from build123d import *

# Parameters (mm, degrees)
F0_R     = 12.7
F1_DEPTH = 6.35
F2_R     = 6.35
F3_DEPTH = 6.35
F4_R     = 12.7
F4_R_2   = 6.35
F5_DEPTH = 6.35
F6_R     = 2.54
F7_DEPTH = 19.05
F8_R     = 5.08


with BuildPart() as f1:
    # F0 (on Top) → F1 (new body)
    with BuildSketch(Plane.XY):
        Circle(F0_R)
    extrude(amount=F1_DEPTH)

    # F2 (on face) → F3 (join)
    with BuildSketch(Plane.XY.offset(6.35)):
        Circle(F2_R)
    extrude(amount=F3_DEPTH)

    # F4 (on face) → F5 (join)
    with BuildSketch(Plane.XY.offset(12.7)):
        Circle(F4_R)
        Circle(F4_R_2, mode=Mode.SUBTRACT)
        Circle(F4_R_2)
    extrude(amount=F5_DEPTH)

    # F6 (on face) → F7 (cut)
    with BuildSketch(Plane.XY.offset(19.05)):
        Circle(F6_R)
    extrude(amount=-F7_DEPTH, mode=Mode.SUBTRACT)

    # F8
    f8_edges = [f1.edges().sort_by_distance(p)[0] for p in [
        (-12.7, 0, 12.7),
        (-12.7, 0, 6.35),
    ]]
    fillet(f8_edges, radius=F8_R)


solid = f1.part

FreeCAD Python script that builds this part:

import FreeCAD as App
import Part
import Sketcher
from FreeCAD import Vector
Q = App.Units.Quantity


def edges_at(feature, points):
    """Names of the edges that pass closest to the given points."""
    edges = feature.Shape.Edges
    near = lambda p: min(range(len(edges)), key=lambda i: edges[i].distToShape(Part.Vertex(*p))[0])
    return sorted({f"Edge{near(p) + 1}" for p in points})

doc = App.newDocument("Part")
body = doc.addObject("PartDesign::Body", "Body")

# Sketch on XY plane
sketch1 = doc.addObject("Sketcher::SketchObject", "Sketch")
body.addObject(sketch1)
sketch1.AttachmentSupport = (doc.XY_Plane, [""])
sketch1.MapMode = "FlatFace"
sketch1.addGeometry(Part.Circle(Vector(0, 0, 0), Vector(0, 0, 1), 13), False)
sketch1.addConstraint(Sketcher.Constraint("Coincident", 0, 3, -1, 1))
sketch1.addConstraint(Sketcher.Constraint("Diameter", 0, Q("1 in")))
pad1 = doc.addObject("PartDesign::Pad", "Pad")
body.addObject(pad1)
pad1.Profile = sketch1
pad1.Length = Q("0.25 in")

# Sketch on XY plane
sketch2 = doc.addObject("Sketcher::SketchObject", "Sketch001")
body.addObject(sketch2)
sketch2.AttachmentSupport = (doc.XY_Plane, [""])
sketch2.MapMode = "FlatFace"
sketch2.AttachmentOffset = App.Placement(Vector(0, 0, 0.25 * 25.4), App.Rotation())
sketch2.addGeometry(Part.Circle(Vector(0, 0, 0), Vector(0, 0, 1), 6), False)
sketch2.addConstraint(Sketcher.Constraint("Coincident", 0, 3, -1, 1))
sketch2.addConstraint(Sketcher.Constraint("Diameter", 0, Q("0.5 in")))
pad2 = doc.addObject("PartDesign::Pad", "Pad001")
body.addObject(pad2)
pad2.Profile = sketch2
pad2.Length = Q("0.25 in")

# Sketch on XY plane
sketch3 = doc.addObject("Sketcher::SketchObject", "Sketch002")
body.addObject(sketch3)
sketch3.AttachmentSupport = (doc.XY_Plane, [""])
sketch3.MapMode = "FlatFace"
sketch3.AttachmentOffset = App.Placement(Vector(0, 0, 0.5 * 25.4), App.Rotation())
sketch3.addGeometry(Part.Circle(Vector(0, 0, 0), Vector(0, 0, 1), 13), False)
sketch3.addConstraint(Sketcher.Constraint("Coincident", 0, 3, -1, 1))
sketch3.addConstraint(Sketcher.Constraint("Diameter", 0, Q("1 in")))
pad3 = doc.addObject("PartDesign::Pad", "Pad002")
body.addObject(pad3)
pad3.Profile = sketch3
pad3.Length = Q("0.25 in")

# Sketch on XY plane
sketch4 = doc.addObject("Sketcher::SketchObject", "Sketch003")
body.addObject(sketch4)
sketch4.AttachmentSupport = (doc.XY_Plane, [""])
sketch4.MapMode = "FlatFace"
sketch4.AttachmentOffset = App.Placement(Vector(0, 0, 0.75 * 25.4), App.Rotation())
sketch4.addGeometry(Part.Circle(Vector(0, 0, 0), Vector(0, 0, 1), 2.5), False)
sketch4.addConstraint(Sketcher.Constraint("Coincident", 0, 3, -1, 1))
sketch4.addConstraint(Sketcher.Constraint("Diameter", 0, Q("0.2 in")))
pocket1 = doc.addObject("PartDesign::Pocket", "Pocket")
body.addObject(pocket1)
pocket1.Profile = sketch4
pocket1.Length = Q("0.75 in")
doc.recompute()

fillet = doc.addObject("PartDesign::Fillet", "Fillet")
body.addObject(fillet)
fillet.Base = (pocket1, edges_at(pocket1, [(-12.7, 0, 12.7), (-12.7, 0, 6.35)]))
fillet.Radius = Q("0.2 in")

doc.recompute()
